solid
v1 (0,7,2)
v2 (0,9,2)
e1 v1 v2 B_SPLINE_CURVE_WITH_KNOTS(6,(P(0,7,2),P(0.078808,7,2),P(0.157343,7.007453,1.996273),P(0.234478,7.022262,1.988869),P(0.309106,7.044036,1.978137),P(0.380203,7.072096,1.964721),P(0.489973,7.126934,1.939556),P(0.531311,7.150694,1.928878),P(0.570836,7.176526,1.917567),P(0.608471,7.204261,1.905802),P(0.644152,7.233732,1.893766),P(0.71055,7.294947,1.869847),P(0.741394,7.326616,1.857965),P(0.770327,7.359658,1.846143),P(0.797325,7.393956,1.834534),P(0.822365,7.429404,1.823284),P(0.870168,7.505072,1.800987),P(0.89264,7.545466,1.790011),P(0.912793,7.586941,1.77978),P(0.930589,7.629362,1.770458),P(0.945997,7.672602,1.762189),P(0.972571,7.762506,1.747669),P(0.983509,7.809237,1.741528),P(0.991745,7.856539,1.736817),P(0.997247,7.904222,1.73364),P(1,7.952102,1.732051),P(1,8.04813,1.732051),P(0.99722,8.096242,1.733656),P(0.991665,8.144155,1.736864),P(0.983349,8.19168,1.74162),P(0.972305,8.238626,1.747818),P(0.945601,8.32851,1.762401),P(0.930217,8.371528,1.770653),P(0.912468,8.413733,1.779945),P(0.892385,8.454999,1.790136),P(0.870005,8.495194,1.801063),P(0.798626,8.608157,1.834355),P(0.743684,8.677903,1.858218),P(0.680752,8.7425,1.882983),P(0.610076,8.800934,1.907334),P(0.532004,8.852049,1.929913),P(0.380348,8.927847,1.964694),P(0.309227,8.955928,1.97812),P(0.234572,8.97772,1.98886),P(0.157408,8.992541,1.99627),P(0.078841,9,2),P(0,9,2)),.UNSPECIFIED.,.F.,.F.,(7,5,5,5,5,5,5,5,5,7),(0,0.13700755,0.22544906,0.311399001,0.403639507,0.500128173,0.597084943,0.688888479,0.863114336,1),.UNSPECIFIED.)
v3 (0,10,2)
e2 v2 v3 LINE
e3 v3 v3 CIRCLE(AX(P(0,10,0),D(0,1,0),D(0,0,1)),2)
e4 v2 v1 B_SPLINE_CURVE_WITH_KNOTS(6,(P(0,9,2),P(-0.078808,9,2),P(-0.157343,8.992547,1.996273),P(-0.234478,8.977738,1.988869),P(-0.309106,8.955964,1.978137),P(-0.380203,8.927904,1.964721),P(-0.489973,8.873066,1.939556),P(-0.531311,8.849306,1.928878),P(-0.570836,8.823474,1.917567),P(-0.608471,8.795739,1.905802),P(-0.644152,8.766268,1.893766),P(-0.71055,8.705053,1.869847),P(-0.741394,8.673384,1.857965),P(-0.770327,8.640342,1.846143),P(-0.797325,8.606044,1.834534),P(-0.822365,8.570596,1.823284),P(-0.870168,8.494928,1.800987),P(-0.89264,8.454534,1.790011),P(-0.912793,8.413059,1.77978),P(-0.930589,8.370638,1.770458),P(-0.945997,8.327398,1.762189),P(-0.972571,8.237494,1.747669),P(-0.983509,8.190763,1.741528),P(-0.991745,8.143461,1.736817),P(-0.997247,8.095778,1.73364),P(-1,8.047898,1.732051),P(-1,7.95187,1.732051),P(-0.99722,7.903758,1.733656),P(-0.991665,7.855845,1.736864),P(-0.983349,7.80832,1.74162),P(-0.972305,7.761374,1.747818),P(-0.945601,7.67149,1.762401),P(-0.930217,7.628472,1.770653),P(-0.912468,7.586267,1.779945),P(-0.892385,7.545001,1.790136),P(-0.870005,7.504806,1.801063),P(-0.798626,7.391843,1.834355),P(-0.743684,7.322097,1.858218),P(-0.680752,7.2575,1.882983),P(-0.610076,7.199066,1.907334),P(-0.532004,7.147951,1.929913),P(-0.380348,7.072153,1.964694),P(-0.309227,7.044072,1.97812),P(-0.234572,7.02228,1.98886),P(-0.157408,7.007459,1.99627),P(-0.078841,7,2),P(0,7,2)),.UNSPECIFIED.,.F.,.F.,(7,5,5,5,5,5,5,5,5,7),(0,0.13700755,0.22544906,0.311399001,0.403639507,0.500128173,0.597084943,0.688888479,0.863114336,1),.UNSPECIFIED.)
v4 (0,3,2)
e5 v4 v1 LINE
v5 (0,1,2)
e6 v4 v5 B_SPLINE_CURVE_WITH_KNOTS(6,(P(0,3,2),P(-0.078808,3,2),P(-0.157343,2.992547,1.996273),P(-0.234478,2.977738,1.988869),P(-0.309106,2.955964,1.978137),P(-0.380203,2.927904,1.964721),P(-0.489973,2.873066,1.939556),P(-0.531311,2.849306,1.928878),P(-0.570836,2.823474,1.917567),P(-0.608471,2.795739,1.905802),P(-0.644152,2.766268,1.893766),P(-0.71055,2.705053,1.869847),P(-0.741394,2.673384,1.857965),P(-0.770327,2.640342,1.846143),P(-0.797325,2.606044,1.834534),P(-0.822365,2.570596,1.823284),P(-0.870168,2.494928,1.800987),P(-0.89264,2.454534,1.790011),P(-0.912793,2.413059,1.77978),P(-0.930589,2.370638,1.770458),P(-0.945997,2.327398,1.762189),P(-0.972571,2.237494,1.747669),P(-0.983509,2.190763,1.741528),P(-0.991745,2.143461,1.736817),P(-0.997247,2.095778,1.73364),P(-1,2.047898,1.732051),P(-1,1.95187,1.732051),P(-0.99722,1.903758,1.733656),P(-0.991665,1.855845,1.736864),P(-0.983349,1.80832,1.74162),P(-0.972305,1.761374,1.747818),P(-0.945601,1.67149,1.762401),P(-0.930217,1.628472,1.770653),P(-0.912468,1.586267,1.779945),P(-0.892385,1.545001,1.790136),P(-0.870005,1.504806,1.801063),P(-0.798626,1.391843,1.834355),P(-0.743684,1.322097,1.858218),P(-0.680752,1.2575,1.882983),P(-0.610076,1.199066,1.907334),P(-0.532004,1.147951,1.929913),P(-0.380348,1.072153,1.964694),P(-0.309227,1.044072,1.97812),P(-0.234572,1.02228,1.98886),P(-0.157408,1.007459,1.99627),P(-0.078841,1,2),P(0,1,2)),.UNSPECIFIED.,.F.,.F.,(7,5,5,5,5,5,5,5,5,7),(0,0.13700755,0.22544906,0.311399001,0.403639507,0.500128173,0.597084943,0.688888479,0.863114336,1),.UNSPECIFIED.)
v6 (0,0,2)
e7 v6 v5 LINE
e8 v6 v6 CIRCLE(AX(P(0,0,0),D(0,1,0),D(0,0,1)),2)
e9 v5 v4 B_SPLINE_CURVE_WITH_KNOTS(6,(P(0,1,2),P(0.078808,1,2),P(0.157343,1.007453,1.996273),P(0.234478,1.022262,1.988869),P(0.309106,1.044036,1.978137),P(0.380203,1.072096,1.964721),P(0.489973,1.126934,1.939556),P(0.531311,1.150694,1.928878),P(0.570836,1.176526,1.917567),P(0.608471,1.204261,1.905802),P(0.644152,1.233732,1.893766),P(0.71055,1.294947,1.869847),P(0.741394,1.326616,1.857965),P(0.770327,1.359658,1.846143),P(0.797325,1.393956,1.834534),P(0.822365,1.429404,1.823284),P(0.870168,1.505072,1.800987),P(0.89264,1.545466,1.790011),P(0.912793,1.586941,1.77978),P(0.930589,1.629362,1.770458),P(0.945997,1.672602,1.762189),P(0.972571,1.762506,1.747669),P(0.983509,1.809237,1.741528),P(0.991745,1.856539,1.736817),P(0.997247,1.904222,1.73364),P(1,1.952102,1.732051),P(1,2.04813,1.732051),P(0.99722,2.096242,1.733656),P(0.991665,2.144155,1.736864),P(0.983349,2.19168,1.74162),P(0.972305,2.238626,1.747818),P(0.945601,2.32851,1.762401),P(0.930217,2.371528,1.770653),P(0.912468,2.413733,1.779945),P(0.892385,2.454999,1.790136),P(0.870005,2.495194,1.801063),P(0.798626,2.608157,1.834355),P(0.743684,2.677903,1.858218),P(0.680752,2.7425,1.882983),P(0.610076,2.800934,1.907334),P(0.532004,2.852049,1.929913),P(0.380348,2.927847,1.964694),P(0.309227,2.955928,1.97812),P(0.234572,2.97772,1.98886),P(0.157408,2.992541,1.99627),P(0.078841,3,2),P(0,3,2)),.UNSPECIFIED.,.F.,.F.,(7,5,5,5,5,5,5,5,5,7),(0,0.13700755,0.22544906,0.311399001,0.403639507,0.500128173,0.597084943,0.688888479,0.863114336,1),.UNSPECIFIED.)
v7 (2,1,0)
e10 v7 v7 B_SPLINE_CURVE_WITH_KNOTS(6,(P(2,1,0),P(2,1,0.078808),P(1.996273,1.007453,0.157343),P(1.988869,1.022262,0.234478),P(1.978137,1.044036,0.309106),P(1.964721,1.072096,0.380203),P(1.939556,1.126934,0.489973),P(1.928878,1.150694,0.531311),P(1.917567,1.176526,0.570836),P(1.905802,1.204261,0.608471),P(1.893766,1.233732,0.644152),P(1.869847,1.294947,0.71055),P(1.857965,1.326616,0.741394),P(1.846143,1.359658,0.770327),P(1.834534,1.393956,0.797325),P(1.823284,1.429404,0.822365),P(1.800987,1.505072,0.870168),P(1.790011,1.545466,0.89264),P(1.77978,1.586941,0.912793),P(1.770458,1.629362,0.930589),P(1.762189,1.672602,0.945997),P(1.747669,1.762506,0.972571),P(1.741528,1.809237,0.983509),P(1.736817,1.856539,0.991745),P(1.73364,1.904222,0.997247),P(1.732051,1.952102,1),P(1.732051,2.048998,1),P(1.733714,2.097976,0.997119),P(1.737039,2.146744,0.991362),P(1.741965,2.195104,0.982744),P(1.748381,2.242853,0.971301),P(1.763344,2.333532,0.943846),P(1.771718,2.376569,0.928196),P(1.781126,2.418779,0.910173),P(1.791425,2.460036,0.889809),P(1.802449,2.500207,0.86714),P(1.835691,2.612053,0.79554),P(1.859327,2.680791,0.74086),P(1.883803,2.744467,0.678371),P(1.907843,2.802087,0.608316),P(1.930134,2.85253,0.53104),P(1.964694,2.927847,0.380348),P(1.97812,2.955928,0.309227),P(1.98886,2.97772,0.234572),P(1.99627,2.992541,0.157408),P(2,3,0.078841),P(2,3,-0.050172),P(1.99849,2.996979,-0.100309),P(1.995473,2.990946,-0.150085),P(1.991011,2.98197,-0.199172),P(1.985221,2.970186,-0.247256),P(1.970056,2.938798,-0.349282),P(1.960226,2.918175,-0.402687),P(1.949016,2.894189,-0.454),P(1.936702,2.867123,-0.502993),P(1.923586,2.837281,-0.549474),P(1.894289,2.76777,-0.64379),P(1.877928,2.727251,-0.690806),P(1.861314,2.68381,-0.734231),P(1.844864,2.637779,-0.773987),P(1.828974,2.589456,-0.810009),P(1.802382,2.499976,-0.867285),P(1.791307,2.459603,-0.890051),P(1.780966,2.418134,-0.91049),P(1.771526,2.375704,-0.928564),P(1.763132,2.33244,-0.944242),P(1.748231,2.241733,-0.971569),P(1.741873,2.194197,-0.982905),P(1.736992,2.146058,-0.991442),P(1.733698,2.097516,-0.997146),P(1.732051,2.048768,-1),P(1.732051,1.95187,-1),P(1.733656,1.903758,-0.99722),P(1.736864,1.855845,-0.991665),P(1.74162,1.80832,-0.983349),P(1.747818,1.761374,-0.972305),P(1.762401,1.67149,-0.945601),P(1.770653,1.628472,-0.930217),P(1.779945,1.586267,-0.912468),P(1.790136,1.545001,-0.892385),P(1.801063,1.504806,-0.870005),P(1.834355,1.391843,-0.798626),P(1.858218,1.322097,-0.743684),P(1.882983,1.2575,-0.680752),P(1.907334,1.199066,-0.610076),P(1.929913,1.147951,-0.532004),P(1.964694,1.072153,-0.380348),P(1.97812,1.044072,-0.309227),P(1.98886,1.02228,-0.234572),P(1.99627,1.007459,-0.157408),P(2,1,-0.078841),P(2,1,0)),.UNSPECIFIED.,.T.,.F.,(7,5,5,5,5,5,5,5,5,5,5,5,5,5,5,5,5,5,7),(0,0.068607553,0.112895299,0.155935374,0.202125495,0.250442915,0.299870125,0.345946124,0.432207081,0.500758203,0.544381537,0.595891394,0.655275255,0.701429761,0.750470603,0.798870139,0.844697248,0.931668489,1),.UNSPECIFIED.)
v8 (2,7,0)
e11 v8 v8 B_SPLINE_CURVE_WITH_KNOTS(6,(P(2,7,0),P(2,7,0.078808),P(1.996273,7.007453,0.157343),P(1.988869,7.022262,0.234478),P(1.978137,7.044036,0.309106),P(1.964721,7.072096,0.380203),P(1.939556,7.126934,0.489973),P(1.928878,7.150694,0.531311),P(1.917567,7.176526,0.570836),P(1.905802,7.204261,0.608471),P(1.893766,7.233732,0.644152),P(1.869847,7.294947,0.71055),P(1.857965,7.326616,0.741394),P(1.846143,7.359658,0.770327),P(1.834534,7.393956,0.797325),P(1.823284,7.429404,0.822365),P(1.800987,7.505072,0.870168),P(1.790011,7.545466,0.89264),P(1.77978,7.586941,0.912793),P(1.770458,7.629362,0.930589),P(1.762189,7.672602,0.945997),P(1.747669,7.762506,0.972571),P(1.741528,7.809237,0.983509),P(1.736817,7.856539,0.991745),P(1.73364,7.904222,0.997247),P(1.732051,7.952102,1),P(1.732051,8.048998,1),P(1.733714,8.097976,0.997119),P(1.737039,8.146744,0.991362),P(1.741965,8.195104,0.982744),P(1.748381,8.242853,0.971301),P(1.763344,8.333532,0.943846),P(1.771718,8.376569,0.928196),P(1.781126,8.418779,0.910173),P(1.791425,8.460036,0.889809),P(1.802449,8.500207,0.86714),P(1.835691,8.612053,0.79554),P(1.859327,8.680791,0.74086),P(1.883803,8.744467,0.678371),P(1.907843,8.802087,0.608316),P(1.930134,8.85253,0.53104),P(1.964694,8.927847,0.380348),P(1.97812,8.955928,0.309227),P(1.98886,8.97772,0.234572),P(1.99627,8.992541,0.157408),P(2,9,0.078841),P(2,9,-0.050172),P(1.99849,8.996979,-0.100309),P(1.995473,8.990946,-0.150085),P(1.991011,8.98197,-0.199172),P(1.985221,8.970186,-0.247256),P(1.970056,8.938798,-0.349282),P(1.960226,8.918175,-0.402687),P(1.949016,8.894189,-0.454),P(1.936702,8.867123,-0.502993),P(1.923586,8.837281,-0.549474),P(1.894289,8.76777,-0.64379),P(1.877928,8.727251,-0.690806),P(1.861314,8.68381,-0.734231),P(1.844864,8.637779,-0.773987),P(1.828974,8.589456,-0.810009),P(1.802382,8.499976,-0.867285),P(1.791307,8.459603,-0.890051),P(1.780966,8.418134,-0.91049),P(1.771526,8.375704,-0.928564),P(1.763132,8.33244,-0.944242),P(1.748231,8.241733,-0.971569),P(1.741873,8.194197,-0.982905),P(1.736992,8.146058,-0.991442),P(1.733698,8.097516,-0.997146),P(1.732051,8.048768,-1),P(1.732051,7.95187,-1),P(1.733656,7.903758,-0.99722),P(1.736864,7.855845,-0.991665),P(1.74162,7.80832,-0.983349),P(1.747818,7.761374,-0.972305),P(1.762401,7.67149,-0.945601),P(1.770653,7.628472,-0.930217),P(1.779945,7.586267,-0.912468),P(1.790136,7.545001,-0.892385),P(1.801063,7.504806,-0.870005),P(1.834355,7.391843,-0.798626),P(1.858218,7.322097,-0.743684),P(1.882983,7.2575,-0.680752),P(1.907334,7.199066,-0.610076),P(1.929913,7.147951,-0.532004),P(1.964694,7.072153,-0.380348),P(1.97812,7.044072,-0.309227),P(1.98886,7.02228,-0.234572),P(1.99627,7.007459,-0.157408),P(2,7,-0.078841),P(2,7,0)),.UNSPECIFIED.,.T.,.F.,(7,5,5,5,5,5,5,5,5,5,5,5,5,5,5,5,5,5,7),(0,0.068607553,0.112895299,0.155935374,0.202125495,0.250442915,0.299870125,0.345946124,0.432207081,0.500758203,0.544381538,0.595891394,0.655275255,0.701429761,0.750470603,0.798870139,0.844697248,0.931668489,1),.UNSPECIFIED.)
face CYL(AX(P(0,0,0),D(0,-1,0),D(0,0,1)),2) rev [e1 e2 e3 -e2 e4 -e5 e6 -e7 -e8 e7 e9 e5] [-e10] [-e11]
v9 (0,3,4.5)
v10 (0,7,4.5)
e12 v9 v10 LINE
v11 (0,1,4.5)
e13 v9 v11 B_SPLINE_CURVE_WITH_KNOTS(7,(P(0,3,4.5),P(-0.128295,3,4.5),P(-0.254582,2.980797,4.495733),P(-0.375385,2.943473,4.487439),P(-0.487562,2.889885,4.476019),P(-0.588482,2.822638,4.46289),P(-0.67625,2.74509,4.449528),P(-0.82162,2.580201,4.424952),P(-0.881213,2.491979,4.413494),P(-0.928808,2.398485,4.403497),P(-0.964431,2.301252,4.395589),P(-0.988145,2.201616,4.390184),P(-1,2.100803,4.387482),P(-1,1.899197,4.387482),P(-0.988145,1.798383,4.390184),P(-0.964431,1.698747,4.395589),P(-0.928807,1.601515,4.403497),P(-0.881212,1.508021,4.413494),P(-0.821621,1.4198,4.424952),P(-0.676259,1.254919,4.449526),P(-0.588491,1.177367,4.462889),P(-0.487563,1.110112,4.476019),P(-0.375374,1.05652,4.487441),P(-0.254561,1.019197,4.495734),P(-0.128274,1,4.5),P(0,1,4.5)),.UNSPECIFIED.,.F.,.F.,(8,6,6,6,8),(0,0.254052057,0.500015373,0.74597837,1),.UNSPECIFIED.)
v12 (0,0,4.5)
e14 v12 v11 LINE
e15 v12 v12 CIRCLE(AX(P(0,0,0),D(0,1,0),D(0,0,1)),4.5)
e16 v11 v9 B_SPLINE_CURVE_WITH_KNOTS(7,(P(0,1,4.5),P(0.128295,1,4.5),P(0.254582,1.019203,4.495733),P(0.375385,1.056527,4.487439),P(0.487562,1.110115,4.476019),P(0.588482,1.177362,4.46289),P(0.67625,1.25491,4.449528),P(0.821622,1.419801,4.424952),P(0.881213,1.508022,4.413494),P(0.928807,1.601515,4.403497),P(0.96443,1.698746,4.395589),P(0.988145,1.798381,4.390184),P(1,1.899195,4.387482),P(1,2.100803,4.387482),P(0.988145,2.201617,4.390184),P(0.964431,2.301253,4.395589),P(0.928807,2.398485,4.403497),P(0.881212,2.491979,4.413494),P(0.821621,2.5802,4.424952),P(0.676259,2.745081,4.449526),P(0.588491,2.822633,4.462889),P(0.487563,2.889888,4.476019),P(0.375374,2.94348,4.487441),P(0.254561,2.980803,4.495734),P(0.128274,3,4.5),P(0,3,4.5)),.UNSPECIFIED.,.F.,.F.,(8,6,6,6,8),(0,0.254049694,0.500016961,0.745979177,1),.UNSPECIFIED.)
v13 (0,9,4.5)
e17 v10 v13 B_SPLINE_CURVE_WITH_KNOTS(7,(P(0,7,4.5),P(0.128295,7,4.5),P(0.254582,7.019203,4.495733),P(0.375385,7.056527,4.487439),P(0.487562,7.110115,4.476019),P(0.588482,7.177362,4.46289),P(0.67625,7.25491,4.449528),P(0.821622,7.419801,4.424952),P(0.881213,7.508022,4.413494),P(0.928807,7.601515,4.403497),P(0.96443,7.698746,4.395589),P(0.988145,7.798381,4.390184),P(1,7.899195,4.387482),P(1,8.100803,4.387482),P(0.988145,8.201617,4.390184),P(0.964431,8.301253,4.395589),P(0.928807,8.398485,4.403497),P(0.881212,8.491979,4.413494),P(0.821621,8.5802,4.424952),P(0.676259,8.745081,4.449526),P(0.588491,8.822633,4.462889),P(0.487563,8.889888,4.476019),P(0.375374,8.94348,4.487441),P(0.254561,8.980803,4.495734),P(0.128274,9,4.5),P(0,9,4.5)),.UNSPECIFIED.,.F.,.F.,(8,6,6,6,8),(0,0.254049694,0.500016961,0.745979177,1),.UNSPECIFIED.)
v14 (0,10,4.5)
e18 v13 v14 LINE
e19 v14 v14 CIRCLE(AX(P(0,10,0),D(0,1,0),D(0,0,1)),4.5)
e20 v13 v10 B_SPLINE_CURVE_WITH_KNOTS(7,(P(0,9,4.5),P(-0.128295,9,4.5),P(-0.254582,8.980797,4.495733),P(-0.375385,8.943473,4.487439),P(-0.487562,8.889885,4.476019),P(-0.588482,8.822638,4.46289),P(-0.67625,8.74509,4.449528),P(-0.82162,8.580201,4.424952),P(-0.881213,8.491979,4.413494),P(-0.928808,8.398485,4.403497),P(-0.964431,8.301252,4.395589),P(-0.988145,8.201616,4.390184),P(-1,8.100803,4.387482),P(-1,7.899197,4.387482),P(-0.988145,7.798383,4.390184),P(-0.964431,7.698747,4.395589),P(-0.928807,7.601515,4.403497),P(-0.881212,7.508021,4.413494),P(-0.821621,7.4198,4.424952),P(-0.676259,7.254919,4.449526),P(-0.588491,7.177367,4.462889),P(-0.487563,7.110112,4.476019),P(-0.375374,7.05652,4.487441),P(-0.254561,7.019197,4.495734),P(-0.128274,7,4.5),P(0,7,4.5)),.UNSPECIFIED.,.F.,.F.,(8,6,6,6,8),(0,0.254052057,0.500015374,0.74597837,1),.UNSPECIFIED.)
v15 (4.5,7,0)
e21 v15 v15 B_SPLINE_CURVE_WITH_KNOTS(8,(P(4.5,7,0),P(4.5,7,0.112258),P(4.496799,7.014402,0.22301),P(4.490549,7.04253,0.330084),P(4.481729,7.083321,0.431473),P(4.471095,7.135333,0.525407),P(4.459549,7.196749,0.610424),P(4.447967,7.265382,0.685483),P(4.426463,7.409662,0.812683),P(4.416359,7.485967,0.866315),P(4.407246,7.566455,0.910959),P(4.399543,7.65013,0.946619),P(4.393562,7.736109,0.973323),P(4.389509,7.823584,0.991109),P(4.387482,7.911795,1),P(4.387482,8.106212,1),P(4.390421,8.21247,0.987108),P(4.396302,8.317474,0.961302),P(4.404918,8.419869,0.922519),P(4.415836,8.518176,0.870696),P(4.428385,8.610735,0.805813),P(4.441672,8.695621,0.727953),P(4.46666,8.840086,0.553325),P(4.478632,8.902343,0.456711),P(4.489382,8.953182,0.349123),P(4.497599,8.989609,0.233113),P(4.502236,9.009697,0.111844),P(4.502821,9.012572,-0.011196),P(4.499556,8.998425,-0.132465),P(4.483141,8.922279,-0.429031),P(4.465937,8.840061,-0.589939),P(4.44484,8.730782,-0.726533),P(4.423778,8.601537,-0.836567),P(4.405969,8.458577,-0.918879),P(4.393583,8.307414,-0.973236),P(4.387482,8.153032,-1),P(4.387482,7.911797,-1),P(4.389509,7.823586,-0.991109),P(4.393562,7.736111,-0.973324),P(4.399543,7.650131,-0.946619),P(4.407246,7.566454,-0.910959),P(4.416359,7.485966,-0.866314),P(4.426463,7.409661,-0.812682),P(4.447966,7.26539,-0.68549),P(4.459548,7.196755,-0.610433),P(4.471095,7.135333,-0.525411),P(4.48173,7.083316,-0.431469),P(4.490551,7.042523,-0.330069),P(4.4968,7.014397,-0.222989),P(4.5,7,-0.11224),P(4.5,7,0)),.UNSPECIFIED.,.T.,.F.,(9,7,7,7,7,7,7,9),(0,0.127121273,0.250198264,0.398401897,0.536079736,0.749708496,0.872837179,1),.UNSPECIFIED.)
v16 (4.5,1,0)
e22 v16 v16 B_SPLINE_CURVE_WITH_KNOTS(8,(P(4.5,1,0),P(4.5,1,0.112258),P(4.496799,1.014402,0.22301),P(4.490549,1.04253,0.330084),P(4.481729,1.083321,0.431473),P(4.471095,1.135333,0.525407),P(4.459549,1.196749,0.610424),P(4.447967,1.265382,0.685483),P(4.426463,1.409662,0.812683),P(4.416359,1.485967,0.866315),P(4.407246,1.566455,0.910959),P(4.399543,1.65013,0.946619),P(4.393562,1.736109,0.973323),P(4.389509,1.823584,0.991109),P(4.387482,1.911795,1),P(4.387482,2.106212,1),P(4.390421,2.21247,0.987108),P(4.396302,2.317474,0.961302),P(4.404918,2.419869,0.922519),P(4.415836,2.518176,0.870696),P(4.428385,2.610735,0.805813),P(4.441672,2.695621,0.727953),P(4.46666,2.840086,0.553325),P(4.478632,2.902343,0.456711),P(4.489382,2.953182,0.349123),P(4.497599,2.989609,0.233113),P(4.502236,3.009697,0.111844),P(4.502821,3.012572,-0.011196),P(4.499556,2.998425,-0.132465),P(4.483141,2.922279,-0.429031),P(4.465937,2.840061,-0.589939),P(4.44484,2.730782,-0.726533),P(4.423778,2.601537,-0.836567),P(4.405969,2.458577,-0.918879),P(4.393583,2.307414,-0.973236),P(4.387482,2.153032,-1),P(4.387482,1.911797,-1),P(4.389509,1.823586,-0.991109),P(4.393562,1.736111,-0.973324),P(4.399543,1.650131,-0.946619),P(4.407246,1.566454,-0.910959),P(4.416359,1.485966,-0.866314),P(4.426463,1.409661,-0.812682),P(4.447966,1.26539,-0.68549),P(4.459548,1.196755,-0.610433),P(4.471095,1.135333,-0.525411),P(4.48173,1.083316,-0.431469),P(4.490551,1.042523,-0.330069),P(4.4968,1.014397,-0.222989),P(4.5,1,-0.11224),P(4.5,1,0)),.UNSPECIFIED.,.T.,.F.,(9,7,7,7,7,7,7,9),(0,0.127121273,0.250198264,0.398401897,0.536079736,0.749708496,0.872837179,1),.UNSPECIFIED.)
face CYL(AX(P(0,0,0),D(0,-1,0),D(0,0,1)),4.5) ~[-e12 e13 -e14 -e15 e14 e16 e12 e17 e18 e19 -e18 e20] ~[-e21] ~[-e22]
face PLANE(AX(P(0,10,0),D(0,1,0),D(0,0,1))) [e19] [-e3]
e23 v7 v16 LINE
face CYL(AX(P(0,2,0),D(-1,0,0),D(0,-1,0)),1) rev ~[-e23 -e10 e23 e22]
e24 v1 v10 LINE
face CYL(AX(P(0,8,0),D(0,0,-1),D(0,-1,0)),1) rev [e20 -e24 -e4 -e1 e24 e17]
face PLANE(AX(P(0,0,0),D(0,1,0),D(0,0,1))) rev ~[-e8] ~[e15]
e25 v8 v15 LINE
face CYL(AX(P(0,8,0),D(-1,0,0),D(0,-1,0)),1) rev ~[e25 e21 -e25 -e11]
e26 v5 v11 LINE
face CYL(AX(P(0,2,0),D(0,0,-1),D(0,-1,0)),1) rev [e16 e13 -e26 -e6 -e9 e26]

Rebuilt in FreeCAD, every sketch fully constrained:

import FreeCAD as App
import Part
import Sketcher
from FreeCAD import Vector

doc = App.newDocument("Part")
params = doc.addObject("Spreadsheet::Sheet", "Params")
for row, (alias, value) in enumerate([
    ("sketch1_diameter", "9 mm"),
    ("sketch1_diameter2", "4 mm"),
    ("pad1_length", "10 mm"),
    ("sketch2_diameter", "2 mm"),
], start=1):
    params.set(f"A{row}", alias)
    params.set(f"B{row}", "=" + value)
    params.setAlias(f"B{row}", alias)

body = doc.addObject("PartDesign::Body", "Body")

# Sketch on XZ plane
sketch1 = doc.addObject("Sketcher::SketchObject", "Sketch")
body.addObject(sketch1)
sketch1.AttachmentSupport = (doc.XZ_Plane, [""])
sketch1.MapMode = "FlatFace"
sketch1.addGeometry([
    Part.Circle(Vector(0, 0, 0), Vector(0, 0, 1), 4.5),
    Part.Circle(Vector(0, 0, 0), Vector(0, 0, 1), 2),
], False)
sketch1.addConstraint([
    Sketcher.Constraint("Coincident", 0, 3, -1, 1),
    Sketcher.Constraint("Coincident", 1, 3, -1, 1),
    Sketcher.Constraint("Diameter", 0, 9.0),
    Sketcher.Constraint("Diameter", 1, 4.0),
])
sketch1.setExpression("Constraints[2]", "Params.sketch1_diameter")
sketch1.setExpression("Constraints[3]", "Params.sketch1_diameter2")
pad1 = doc.addObject("PartDesign::Pad", "Pad")
body.addObject(pad1)
pad1.Profile = sketch1
pad1.setExpression("Length", "Params.pad1_length")
pad1.Reversed = True

# Sketch on XY plane
sketch2 = doc.addObject("Sketcher::SketchObject", "Sketch001")
body.addObject(sketch2)
sketch2.AttachmentSupport = (doc.XY_Plane, [""])
sketch2.MapMode = "FlatFace"
sketch2.addGeometry([
    Part.Circle(Vector(0, 8, 0), Vector(0, 0, 1), 1),
    Part.Circle(Vector(0, 2, 0), Vector(0, 0, 1), 1),
], False)
sketch2.addConstraint([
    Sketcher.Constraint("Equal", 0, 1),
    Sketcher.Constraint("PointOnObject", 0, 3, -2),
    Sketcher.Constraint("PointOnObject", 1, 3, -2),
    Sketcher.Constraint("Diameter", 0, 2.0),
    Sketcher.Constraint("DistanceY", -1, 1, 0, 3, 8.0),
    Sketcher.Constraint("DistanceY", -1, 1, 1, 3, 2.0),
])
sketch2.setExpression("Constraints[3]", "Params.sketch2_diameter")
pocket1 = doc.addObject("PartDesign::Pocket", "Pocket")
body.addObject(pocket1)
pocket1.Profile = sketch2
pocket1.Type = "ThroughAll"
pocket1.Reversed = True
doc.recompute()

datumplane = doc.addObject("PartDesign::Plane", "DatumPlane")
body.addObject(datumplane)
datumplane.Placement = App.Placement(Vector(0, 0, 0), App.Rotation(Vector(-0.707106781, 0, -0.707106781), Vector(0, -1, 0), Vector(-0.707106781, 0, 0.707106781), "ZXY"))
mirrored = doc.addObject("PartDesign::Mirrored", "Mirrored")
body.addObject(mirrored)
mirrored.Originals = [pocket1]
mirrored.MirrorPlane = (datumplane, [""])
body.Tip = mirrored

doc.recompute()
